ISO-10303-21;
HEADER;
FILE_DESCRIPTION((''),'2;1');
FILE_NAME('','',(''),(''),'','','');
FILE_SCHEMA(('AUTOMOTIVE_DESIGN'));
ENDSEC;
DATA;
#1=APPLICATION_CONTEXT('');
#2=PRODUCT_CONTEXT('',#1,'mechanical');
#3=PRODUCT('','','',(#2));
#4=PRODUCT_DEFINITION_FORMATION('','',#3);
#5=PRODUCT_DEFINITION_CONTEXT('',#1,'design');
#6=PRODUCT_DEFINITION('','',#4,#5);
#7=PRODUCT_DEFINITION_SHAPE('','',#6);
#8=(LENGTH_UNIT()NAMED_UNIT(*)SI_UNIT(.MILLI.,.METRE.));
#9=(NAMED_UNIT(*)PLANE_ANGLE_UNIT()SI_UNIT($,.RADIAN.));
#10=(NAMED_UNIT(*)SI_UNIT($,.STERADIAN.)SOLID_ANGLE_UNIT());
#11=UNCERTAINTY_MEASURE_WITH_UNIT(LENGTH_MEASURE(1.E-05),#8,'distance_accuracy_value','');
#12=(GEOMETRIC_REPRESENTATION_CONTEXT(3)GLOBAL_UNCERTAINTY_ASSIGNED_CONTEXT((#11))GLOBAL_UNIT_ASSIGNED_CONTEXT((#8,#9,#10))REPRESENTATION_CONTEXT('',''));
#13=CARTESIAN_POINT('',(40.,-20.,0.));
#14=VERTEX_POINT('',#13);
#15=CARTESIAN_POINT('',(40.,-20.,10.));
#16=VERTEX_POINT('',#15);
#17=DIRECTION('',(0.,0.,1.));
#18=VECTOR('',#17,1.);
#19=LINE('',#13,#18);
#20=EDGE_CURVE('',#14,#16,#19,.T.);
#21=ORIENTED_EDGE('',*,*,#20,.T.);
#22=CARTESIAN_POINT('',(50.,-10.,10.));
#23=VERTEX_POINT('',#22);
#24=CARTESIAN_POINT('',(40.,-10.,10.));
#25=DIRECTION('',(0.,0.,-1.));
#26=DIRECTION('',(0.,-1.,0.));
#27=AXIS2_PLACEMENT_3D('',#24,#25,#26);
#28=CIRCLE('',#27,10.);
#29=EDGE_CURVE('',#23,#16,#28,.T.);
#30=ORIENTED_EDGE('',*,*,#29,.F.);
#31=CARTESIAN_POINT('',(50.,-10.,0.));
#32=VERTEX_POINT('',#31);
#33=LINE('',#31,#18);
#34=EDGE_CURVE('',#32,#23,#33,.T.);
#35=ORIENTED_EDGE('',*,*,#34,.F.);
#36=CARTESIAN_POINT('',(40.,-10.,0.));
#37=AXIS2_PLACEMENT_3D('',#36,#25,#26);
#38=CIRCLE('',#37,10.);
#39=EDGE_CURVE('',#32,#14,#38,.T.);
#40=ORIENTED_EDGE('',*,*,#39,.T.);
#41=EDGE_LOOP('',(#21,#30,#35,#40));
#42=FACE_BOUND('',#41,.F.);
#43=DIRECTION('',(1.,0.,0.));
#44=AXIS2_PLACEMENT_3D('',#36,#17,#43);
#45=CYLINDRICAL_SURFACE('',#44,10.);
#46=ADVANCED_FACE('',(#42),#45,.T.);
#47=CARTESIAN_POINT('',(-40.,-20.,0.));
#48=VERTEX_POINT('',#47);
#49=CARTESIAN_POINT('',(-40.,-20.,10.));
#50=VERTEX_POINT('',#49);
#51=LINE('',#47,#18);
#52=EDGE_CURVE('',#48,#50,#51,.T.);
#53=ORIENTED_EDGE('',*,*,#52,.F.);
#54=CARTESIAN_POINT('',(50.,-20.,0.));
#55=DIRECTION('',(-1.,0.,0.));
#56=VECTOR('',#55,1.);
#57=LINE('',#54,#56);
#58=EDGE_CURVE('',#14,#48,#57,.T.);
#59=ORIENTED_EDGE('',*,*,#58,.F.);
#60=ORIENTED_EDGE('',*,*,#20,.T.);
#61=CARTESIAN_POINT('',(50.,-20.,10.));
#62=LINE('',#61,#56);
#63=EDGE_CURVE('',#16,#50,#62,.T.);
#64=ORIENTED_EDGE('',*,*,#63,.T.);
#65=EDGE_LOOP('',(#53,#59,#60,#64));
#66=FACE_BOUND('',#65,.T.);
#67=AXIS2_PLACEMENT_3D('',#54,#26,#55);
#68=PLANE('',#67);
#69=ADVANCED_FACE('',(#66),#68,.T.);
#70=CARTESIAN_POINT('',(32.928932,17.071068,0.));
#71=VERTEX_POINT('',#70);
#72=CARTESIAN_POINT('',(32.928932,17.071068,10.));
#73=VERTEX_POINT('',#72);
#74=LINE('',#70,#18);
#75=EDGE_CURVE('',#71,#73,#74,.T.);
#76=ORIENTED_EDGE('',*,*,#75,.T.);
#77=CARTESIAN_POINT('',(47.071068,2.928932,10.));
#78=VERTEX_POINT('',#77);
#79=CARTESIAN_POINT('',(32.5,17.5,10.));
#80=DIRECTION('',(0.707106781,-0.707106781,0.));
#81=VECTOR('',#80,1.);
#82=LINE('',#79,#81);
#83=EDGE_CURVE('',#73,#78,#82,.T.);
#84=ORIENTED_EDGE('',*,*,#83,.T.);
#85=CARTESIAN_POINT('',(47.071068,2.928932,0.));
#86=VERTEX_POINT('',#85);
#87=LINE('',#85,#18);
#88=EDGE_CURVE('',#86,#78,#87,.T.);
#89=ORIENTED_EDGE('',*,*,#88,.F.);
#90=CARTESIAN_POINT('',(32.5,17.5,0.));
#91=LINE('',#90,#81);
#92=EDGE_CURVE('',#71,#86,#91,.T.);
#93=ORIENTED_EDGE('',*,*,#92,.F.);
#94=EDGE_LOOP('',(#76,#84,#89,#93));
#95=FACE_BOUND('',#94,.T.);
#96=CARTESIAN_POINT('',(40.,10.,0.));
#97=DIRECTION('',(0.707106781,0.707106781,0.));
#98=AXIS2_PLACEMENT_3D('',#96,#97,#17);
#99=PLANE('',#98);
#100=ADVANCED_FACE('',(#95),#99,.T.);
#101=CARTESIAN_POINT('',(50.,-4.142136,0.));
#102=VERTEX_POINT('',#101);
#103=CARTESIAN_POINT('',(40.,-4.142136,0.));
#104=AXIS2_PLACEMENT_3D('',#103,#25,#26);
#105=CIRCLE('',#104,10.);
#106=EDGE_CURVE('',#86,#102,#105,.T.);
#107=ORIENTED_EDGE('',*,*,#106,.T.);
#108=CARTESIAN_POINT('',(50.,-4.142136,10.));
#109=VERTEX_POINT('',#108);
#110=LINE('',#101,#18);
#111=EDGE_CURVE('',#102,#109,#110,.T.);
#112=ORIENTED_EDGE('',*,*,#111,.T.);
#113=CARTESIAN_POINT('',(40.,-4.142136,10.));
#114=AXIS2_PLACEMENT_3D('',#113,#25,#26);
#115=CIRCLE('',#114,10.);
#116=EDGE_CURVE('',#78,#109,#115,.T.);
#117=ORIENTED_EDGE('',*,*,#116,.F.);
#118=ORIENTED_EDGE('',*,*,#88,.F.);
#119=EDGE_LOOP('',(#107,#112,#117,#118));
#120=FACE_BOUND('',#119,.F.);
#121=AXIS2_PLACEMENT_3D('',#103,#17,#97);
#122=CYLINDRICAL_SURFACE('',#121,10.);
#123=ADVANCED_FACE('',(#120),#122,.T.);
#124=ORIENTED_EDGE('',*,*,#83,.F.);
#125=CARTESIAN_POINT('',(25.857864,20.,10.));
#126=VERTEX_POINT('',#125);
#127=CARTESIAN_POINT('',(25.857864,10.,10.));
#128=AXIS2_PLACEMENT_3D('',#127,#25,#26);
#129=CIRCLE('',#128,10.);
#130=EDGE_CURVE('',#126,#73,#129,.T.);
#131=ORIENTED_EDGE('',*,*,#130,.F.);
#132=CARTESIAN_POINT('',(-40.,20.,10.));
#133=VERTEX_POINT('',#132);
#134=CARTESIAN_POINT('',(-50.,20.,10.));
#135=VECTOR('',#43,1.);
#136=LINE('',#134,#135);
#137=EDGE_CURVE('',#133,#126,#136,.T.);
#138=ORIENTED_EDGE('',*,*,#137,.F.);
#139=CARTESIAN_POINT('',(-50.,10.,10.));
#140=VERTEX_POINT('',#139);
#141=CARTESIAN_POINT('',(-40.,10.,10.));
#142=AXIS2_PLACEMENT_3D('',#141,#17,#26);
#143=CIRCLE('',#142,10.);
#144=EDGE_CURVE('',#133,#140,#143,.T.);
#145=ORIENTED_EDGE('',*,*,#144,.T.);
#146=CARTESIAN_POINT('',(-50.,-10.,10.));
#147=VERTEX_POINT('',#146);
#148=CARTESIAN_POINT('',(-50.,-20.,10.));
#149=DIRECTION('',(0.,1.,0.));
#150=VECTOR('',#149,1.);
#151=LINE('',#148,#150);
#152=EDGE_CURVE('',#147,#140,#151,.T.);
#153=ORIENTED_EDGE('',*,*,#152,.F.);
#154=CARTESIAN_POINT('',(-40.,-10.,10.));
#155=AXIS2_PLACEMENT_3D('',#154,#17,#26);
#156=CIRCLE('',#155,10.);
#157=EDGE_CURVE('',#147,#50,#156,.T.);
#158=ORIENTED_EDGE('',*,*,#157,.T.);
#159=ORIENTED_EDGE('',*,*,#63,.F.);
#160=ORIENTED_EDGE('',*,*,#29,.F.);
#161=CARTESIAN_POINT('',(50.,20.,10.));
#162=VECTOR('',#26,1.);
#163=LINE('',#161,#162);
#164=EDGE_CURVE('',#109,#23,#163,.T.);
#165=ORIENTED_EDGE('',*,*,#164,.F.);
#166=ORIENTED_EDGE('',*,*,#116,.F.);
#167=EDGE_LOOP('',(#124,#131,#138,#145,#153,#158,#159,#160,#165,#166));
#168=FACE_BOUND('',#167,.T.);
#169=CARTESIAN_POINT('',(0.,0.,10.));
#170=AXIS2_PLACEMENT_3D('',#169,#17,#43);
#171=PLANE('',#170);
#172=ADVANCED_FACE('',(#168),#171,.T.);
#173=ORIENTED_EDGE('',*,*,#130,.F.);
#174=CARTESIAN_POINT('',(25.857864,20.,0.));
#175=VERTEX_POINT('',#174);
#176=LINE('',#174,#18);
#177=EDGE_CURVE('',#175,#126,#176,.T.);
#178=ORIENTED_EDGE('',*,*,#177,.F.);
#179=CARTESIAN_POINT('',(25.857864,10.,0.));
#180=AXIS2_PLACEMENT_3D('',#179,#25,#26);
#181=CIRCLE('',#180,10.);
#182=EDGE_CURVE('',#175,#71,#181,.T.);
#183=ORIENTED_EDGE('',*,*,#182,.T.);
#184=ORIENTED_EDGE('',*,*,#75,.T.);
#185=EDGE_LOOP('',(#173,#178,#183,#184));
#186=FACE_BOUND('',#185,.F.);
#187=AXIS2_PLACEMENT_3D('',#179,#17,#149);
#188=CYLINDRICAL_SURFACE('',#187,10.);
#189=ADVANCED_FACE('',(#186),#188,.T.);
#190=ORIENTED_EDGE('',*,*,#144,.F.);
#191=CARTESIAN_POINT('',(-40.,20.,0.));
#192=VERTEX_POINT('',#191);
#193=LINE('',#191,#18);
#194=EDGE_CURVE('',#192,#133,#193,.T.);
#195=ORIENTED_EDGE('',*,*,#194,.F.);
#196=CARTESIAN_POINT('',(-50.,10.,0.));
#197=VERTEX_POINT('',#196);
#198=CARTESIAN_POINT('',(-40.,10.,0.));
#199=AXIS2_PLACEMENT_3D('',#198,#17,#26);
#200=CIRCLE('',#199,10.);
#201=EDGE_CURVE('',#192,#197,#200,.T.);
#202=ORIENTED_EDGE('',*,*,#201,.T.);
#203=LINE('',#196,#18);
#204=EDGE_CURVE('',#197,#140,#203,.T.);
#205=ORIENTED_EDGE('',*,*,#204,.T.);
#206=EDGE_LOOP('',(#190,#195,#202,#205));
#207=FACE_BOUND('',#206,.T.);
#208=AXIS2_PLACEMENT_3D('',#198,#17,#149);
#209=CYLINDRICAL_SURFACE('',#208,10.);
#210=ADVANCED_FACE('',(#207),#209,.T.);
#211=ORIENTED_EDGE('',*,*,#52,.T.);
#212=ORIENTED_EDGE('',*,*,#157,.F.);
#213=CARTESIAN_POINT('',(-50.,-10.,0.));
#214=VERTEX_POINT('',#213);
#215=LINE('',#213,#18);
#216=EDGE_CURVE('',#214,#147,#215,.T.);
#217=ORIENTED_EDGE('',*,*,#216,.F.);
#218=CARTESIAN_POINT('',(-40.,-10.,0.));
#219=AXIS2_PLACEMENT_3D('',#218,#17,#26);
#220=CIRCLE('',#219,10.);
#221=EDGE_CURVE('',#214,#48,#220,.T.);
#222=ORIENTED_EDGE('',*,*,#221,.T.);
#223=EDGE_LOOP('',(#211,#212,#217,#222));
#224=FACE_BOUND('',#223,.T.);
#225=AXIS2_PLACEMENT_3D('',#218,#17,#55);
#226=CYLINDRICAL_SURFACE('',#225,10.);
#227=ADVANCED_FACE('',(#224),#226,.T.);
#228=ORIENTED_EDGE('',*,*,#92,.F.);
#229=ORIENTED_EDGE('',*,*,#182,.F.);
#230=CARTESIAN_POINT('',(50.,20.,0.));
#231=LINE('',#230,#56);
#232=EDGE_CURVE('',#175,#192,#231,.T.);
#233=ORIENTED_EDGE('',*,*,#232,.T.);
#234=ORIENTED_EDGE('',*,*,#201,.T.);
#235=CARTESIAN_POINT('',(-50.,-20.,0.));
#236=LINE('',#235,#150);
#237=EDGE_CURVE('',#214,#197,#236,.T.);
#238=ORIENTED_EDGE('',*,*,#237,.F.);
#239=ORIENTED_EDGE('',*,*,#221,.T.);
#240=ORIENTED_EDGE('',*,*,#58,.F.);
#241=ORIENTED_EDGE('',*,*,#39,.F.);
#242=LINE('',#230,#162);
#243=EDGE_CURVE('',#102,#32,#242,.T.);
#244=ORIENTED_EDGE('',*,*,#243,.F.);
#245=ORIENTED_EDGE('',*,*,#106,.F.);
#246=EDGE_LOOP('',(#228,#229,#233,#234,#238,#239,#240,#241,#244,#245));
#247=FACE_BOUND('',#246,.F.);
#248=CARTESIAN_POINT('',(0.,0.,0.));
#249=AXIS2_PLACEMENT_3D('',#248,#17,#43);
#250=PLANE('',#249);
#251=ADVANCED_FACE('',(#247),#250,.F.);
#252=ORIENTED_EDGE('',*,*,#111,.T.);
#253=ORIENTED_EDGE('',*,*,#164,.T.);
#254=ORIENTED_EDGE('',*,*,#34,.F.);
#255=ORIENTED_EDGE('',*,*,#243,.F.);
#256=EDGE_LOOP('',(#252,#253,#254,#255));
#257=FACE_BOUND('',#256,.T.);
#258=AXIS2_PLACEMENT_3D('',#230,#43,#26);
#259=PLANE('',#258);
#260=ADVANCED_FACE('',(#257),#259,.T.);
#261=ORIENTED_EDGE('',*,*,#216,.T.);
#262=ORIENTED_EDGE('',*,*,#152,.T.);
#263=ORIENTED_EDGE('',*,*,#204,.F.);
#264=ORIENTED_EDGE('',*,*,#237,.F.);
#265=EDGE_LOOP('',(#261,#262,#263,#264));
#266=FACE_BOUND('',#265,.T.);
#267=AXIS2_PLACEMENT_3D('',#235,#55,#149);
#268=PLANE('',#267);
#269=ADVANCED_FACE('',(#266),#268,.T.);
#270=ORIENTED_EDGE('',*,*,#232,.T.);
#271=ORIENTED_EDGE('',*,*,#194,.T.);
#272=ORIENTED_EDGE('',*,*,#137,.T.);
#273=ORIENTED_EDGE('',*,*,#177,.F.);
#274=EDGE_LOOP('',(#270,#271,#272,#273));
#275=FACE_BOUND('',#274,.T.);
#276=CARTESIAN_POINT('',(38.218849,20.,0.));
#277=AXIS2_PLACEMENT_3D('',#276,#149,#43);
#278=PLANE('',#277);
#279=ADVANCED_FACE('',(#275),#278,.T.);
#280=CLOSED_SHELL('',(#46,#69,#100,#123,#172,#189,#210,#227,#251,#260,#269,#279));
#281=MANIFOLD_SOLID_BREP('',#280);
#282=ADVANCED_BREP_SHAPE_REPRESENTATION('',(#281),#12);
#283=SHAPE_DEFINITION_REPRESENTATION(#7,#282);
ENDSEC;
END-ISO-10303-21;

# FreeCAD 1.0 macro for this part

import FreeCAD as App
import Part
import Sketcher
from FreeCAD import Vector
Q = App.Units.Quantity


def edges_at(feature, points):
    """Names of the edges that pass closest to the given points."""
    edges = feature.Shape.Edges
    near = lambda p: min(range(len(edges)), key=lambda i: edges[i].distToShape(Part.Vertex(*p))[0])
    return sorted({f"Edge{near(p) + 1}" for p in points})

doc = App.newDocument("Part")
body = doc.addObject("PartDesign::Body", "Body")

# Sketch on XY plane
sketch1 = body.newObject("Sketcher::SketchObject", "Sketch")
sketch1.AttachmentSupport = (doc.getObject("XY_Plane"), [""])
sketch1.MapMode = "FlatFace"
sketch1.addGeometry(Part.LineSegment(Vector(-50, 20, 0), Vector(-50, -20, 0)), False)
sketch1.addGeometry(Part.LineSegment(Vector(-50, -20, 0), Vector(50, -20, 0)), False)
sketch1.addGeometry(Part.LineSegment(Vector(50, -20, 0), Vector(50, 20, 0)), False)
sketch1.addGeometry(Part.LineSegment(Vector(50, 20, 0), Vector(-50, 20, 0)), False)
sketch1.addConstraint(Sketcher.Constraint("Coincident", 0, 2, 1, 1))
sketch1.addConstraint(Sketcher.Constraint("Coincident", 1, 2, 2, 1))
sketch1.addConstraint(Sketcher.Constraint("Coincident", 2, 2, 3, 1))
sketch1.addConstraint(Sketcher.Constraint("Coincident", 3, 2, 0, 1))
sketch1.addConstraint(Sketcher.Constraint("Vertical", 0))
sketch1.addConstraint(Sketcher.Constraint("Horizontal", 1))
sketch1.addConstraint(Sketcher.Constraint("Vertical", 2))
sketch1.addConstraint(Sketcher.Constraint("Horizontal", 3))
sketch1.addConstraint(Sketcher.Constraint("Symmetric", 0, 2, 2, 2, -1, 1))
sketch1.addConstraint(Sketcher.Constraint("DistanceX", 1, 1, 1, 2, Q("3.937 in")))
sketch1.addConstraint(Sketcher.Constraint("DistanceY", 0, 2, 0, 1, Q("1.5748 in")))
pad1 = body.newObject("PartDesign::Pad", "Pad")
pad1.Profile = sketch1
pad1.Length = Q("0.3937008 in")
doc.recompute()

chamfer = body.newObject("PartDesign::Chamfer", "Chamfer")
chamfer.Base = (pad1, edges_at(pad1, [(50, 20, 5)]))
chamfer.Size = Q("0.7874016 in")
doc.recompute()

fillet = body.newObject("PartDesign::Fillet", "Fillet")
fillet.Base = (chamfer, edges_at(chamfer, [
    (-50, 20, 5),
    (30, 20, 5),
    (50, 0, 5),
    (50, -20, 5),
    (-50, -20, 5),
]))
fillet.Radius = Q("0.3937008 in")

doc.recompute()
